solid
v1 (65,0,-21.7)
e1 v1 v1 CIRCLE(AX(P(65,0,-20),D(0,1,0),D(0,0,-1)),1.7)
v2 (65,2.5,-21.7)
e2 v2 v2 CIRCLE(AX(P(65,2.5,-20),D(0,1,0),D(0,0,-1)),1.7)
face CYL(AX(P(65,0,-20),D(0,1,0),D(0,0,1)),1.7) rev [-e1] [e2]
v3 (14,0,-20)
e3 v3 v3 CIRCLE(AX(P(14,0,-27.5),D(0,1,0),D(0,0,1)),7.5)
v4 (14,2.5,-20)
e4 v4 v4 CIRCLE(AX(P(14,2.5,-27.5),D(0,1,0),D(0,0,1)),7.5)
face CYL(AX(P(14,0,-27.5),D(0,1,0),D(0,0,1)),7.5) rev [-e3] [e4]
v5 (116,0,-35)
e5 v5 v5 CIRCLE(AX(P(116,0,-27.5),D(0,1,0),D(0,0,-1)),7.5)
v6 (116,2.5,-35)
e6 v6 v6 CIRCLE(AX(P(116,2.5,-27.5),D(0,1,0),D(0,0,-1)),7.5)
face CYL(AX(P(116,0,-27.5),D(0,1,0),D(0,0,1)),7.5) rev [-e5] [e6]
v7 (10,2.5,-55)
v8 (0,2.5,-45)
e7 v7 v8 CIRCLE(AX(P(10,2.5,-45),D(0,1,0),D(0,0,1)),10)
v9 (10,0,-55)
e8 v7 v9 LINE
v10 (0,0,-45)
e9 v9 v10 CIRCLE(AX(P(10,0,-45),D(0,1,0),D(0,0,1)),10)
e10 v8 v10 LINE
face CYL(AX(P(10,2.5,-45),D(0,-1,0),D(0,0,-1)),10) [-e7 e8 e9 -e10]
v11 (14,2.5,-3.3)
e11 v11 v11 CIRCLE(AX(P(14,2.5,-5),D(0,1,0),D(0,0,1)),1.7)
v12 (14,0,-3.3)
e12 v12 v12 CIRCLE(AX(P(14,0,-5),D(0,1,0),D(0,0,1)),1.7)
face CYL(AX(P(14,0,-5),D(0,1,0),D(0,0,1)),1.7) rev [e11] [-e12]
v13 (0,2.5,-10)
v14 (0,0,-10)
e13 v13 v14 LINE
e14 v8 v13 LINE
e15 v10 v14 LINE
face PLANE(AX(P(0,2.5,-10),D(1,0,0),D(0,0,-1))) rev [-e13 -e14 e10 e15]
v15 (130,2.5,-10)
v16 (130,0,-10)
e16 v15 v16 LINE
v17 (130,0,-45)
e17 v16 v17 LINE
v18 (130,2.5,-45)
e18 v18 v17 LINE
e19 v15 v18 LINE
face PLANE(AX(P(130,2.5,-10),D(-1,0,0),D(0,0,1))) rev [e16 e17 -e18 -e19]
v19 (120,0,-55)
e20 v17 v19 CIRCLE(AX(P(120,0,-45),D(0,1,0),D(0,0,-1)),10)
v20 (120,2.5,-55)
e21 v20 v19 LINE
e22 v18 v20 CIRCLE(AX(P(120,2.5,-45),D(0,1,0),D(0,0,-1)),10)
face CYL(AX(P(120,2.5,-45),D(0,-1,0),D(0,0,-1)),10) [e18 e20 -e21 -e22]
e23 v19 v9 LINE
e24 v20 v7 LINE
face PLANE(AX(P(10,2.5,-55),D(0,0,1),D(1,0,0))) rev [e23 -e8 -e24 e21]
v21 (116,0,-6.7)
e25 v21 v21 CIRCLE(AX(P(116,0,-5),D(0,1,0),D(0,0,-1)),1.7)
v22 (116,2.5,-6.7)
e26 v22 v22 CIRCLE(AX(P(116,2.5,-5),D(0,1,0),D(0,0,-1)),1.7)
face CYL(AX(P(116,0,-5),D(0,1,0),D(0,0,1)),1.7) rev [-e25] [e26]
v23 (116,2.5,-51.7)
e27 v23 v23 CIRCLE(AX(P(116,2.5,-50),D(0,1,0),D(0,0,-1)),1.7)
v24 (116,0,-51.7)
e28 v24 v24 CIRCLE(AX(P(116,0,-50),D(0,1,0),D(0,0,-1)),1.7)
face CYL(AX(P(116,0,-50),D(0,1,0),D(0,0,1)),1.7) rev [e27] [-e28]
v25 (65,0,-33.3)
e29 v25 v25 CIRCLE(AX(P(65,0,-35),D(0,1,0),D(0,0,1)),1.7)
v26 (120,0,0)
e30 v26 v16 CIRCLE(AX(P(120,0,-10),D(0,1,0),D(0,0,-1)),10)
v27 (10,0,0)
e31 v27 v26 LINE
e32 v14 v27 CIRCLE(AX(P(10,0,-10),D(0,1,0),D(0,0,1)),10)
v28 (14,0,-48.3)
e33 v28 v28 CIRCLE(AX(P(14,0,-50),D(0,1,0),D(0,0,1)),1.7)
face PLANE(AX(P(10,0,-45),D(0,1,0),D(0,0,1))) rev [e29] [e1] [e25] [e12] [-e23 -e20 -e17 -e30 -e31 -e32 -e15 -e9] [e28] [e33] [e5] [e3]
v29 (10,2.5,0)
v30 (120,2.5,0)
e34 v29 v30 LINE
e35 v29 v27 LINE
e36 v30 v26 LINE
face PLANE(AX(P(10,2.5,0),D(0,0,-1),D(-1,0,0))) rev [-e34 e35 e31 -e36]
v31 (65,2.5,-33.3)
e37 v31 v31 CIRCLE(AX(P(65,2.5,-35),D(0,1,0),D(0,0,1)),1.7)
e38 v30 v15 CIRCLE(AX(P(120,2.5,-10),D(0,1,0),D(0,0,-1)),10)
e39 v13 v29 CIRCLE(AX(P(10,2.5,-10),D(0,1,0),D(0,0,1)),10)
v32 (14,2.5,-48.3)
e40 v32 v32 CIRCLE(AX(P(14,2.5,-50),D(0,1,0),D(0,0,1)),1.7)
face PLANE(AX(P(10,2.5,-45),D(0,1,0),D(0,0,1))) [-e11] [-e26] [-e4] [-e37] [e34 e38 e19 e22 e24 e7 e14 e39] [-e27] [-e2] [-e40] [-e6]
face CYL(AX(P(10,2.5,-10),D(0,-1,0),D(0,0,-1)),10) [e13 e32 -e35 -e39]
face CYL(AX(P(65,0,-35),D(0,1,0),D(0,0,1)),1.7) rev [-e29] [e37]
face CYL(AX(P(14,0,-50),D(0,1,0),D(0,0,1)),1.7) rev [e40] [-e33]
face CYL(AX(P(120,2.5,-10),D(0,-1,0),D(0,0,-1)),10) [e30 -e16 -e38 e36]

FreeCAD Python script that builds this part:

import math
import FreeCAD as App
import Part
import Sketcher

V = App.Vector
Q = App.Units.Quantity

doc = App.newDocument("Part")
body = doc.addObject("PartDesign::Body", "Body")

sketch1 = body.newObject("Sketcher::SketchObject", "Sketch")
sketch1.AttachmentSupport = (doc.getObject("XZ_Plane"), [""])
sketch1.MapMode = "FlatFace"
sketch1.addGeometry([
    Part.LineSegment(V(10, 0, 0), V(120, 0, 0)),
    Part.ArcOfCircle(Part.Circle(V(120, -10, 0), V(0, 0, 1), 10), math.radians(0), math.radians(90)),
    Part.LineSegment(V(130, -10, 0), V(130, -45, 0)),
    Part.ArcOfCircle(Part.Circle(V(120, -45, 0), V(0, 0, 1), 10), math.radians(-90), math.radians(0)),
    Part.LineSegment(V(120, -55, 0), V(10, -55, 0)),
    Part.ArcOfCircle(Part.Circle(V(10, -45, 0), V(0, 0, 1), 10), math.radians(180), math.radians(270)),
    Part.LineSegment(V(0, -45, 0), V(0, -10, 0)),
    Part.ArcOfCircle(Part.Circle(V(10, -10, 0), V(0, 0, 1), 10), math.radians(90), math.radians(180)),
], False)
sketch1.addConstraint([
    Sketcher.Constraint("Tangent", 0, 2, 1, 2),
    Sketcher.Constraint("Tangent", 1, 1, 2, 1),
    Sketcher.Constraint("Tangent", 2, 2, 3, 2),
    Sketcher.Constraint("Tangent", 3, 1, 4, 1),
    Sketcher.Constraint("Tangent", 4, 2, 5, 2),
    Sketcher.Constraint("Tangent", 5, 1, 6, 1),
    Sketcher.Constraint("Tangent", 6, 2, 7, 2),
    Sketcher.Constraint("Tangent", 7, 1, 0, 1),
    Sketcher.Constraint("Horizontal", 0),
    Sketcher.Constraint("Vertical", 2),
    Sketcher.Constraint("Horizontal", 4),
    Sketcher.Constraint("Vertical", 6),
    Sketcher.Constraint("Equal", 1, 3),
    Sketcher.Constraint("Equal", 3, 5),
    Sketcher.Constraint("Equal", 5, 7),
    Sketcher.Constraint("PointOnObject", 0, 2, -1),
    Sketcher.Constraint("PointOnObject", 5, 1, -2),
    Sketcher.Constraint("Radius", 1, Q("10 mm")),
    Sketcher.Constraint("DistanceX", 0, 1, 0, 2, Q("110 mm")),
    Sketcher.Constraint("DistanceY", 2, 2, 2, 1, Q("35 mm")),
])
pad1 = body.newObject("PartDesign::Pad", "Pad")
pad1.Profile = sketch1
pad1.Length = 2.5
pad1.Reversed = True

sketch2 = body.newObject("Sketcher::SketchObject", "Sketch001")
sketch2.AttachmentSupport = (doc.getObject("XZ_Plane"), [""])
sketch2.MapMode = "FlatFace"
sketch2.AttachmentOffset = App.Placement(V(0, 0, -2.5), App.Rotation())
sketch2.addGeometry([
    Part.Circle(V(14, -5, 0), V(0, 0, 1), 1.7),
    Part.Circle(V(14, -50, 0), V(0, 0, 1), 1.7),
    Part.Circle(V(116, -5, 0), V(0, 0, 1), 1.7),
    Part.Circle(V(116, -50, 0), V(0, 0, 1), 1.7),
    Part.Circle(V(14, -27.5, 0), V(0, 0, 1), 7.5),
    Part.Circle(V(116, -27.5, 0), V(0, 0, 1), 7.5),
    Part.Circle(V(65, -35, 0), V(0, 0, 1), 1.7),
    Part.Circle(V(65, -20, 0), V(0, 0, 1), 1.7),
], False)
sketch2.addConstraint([
    Sketcher.Constraint("Equal", 0, 1),
    Sketcher.Constraint("Equal", 1, 2),
    Sketcher.Constraint("Equal", 2, 3),
    Sketcher.Constraint("Equal", 4, 5),
    Sketcher.Constraint("Equal", 3, 6),
    Sketcher.Constraint("Equal", 6, 7),
    Sketcher.Constraint("Horizontal", 0, 3, 2, 3),
    Sketcher.Constraint("Horizontal", 1, 3, 3, 3),
    Sketcher.Constraint("Horizontal", 4, 3, 5, 3),
    Sketcher.Constraint("Vertical", 0, 3, 1, 3),
    Sketcher.Constraint("Vertical", 2, 3, 3, 3),
    Sketcher.Constraint("Vertical", 1, 3, 4, 3),
    Sketcher.Constraint("Vertical", 3, 3, 5, 3),
    Sketcher.Constraint("Vertical", 6, 3, 7, 3),
    Sketcher.Constraint("Diameter", 4, Q("15 mm")),
    Sketcher.Constraint("Diameter", 0, Q("3.4 mm")),
    Sketcher.Constraint("DistanceX", -1, 1, 0, 3, Q("14 mm")),
    Sketcher.Constraint("DistanceY", 0, 3, -1, 1, Q("5 mm")),
    Sketcher.Constraint("DistanceY", 1, 3, -1, 1, Q("50 mm")),
    Sketcher.Constraint("DistanceX", -1, 1, 2, 3, Q("116 mm")),
    Sketcher.Constraint("DistanceX", -1, 1, 6, 3, Q("65 mm")),
    Sketcher.Constraint("DistanceY", 6, 3, -1, 1, Q("35 mm")),
    Sketcher.Constraint("DistanceY", 7, 3, -1, 1, Q("20 mm")),
    Sketcher.Constraint("DistanceY", 4, 3, -1, 1, Q("27.5 mm")),
])
pocket1 = body.newObject("PartDesign::Pocket", "Pocket")
pocket1.Profile = sketch2
pocket1.Type = "ThroughAll"
pocket1.Reversed = True

doc.recompute()
